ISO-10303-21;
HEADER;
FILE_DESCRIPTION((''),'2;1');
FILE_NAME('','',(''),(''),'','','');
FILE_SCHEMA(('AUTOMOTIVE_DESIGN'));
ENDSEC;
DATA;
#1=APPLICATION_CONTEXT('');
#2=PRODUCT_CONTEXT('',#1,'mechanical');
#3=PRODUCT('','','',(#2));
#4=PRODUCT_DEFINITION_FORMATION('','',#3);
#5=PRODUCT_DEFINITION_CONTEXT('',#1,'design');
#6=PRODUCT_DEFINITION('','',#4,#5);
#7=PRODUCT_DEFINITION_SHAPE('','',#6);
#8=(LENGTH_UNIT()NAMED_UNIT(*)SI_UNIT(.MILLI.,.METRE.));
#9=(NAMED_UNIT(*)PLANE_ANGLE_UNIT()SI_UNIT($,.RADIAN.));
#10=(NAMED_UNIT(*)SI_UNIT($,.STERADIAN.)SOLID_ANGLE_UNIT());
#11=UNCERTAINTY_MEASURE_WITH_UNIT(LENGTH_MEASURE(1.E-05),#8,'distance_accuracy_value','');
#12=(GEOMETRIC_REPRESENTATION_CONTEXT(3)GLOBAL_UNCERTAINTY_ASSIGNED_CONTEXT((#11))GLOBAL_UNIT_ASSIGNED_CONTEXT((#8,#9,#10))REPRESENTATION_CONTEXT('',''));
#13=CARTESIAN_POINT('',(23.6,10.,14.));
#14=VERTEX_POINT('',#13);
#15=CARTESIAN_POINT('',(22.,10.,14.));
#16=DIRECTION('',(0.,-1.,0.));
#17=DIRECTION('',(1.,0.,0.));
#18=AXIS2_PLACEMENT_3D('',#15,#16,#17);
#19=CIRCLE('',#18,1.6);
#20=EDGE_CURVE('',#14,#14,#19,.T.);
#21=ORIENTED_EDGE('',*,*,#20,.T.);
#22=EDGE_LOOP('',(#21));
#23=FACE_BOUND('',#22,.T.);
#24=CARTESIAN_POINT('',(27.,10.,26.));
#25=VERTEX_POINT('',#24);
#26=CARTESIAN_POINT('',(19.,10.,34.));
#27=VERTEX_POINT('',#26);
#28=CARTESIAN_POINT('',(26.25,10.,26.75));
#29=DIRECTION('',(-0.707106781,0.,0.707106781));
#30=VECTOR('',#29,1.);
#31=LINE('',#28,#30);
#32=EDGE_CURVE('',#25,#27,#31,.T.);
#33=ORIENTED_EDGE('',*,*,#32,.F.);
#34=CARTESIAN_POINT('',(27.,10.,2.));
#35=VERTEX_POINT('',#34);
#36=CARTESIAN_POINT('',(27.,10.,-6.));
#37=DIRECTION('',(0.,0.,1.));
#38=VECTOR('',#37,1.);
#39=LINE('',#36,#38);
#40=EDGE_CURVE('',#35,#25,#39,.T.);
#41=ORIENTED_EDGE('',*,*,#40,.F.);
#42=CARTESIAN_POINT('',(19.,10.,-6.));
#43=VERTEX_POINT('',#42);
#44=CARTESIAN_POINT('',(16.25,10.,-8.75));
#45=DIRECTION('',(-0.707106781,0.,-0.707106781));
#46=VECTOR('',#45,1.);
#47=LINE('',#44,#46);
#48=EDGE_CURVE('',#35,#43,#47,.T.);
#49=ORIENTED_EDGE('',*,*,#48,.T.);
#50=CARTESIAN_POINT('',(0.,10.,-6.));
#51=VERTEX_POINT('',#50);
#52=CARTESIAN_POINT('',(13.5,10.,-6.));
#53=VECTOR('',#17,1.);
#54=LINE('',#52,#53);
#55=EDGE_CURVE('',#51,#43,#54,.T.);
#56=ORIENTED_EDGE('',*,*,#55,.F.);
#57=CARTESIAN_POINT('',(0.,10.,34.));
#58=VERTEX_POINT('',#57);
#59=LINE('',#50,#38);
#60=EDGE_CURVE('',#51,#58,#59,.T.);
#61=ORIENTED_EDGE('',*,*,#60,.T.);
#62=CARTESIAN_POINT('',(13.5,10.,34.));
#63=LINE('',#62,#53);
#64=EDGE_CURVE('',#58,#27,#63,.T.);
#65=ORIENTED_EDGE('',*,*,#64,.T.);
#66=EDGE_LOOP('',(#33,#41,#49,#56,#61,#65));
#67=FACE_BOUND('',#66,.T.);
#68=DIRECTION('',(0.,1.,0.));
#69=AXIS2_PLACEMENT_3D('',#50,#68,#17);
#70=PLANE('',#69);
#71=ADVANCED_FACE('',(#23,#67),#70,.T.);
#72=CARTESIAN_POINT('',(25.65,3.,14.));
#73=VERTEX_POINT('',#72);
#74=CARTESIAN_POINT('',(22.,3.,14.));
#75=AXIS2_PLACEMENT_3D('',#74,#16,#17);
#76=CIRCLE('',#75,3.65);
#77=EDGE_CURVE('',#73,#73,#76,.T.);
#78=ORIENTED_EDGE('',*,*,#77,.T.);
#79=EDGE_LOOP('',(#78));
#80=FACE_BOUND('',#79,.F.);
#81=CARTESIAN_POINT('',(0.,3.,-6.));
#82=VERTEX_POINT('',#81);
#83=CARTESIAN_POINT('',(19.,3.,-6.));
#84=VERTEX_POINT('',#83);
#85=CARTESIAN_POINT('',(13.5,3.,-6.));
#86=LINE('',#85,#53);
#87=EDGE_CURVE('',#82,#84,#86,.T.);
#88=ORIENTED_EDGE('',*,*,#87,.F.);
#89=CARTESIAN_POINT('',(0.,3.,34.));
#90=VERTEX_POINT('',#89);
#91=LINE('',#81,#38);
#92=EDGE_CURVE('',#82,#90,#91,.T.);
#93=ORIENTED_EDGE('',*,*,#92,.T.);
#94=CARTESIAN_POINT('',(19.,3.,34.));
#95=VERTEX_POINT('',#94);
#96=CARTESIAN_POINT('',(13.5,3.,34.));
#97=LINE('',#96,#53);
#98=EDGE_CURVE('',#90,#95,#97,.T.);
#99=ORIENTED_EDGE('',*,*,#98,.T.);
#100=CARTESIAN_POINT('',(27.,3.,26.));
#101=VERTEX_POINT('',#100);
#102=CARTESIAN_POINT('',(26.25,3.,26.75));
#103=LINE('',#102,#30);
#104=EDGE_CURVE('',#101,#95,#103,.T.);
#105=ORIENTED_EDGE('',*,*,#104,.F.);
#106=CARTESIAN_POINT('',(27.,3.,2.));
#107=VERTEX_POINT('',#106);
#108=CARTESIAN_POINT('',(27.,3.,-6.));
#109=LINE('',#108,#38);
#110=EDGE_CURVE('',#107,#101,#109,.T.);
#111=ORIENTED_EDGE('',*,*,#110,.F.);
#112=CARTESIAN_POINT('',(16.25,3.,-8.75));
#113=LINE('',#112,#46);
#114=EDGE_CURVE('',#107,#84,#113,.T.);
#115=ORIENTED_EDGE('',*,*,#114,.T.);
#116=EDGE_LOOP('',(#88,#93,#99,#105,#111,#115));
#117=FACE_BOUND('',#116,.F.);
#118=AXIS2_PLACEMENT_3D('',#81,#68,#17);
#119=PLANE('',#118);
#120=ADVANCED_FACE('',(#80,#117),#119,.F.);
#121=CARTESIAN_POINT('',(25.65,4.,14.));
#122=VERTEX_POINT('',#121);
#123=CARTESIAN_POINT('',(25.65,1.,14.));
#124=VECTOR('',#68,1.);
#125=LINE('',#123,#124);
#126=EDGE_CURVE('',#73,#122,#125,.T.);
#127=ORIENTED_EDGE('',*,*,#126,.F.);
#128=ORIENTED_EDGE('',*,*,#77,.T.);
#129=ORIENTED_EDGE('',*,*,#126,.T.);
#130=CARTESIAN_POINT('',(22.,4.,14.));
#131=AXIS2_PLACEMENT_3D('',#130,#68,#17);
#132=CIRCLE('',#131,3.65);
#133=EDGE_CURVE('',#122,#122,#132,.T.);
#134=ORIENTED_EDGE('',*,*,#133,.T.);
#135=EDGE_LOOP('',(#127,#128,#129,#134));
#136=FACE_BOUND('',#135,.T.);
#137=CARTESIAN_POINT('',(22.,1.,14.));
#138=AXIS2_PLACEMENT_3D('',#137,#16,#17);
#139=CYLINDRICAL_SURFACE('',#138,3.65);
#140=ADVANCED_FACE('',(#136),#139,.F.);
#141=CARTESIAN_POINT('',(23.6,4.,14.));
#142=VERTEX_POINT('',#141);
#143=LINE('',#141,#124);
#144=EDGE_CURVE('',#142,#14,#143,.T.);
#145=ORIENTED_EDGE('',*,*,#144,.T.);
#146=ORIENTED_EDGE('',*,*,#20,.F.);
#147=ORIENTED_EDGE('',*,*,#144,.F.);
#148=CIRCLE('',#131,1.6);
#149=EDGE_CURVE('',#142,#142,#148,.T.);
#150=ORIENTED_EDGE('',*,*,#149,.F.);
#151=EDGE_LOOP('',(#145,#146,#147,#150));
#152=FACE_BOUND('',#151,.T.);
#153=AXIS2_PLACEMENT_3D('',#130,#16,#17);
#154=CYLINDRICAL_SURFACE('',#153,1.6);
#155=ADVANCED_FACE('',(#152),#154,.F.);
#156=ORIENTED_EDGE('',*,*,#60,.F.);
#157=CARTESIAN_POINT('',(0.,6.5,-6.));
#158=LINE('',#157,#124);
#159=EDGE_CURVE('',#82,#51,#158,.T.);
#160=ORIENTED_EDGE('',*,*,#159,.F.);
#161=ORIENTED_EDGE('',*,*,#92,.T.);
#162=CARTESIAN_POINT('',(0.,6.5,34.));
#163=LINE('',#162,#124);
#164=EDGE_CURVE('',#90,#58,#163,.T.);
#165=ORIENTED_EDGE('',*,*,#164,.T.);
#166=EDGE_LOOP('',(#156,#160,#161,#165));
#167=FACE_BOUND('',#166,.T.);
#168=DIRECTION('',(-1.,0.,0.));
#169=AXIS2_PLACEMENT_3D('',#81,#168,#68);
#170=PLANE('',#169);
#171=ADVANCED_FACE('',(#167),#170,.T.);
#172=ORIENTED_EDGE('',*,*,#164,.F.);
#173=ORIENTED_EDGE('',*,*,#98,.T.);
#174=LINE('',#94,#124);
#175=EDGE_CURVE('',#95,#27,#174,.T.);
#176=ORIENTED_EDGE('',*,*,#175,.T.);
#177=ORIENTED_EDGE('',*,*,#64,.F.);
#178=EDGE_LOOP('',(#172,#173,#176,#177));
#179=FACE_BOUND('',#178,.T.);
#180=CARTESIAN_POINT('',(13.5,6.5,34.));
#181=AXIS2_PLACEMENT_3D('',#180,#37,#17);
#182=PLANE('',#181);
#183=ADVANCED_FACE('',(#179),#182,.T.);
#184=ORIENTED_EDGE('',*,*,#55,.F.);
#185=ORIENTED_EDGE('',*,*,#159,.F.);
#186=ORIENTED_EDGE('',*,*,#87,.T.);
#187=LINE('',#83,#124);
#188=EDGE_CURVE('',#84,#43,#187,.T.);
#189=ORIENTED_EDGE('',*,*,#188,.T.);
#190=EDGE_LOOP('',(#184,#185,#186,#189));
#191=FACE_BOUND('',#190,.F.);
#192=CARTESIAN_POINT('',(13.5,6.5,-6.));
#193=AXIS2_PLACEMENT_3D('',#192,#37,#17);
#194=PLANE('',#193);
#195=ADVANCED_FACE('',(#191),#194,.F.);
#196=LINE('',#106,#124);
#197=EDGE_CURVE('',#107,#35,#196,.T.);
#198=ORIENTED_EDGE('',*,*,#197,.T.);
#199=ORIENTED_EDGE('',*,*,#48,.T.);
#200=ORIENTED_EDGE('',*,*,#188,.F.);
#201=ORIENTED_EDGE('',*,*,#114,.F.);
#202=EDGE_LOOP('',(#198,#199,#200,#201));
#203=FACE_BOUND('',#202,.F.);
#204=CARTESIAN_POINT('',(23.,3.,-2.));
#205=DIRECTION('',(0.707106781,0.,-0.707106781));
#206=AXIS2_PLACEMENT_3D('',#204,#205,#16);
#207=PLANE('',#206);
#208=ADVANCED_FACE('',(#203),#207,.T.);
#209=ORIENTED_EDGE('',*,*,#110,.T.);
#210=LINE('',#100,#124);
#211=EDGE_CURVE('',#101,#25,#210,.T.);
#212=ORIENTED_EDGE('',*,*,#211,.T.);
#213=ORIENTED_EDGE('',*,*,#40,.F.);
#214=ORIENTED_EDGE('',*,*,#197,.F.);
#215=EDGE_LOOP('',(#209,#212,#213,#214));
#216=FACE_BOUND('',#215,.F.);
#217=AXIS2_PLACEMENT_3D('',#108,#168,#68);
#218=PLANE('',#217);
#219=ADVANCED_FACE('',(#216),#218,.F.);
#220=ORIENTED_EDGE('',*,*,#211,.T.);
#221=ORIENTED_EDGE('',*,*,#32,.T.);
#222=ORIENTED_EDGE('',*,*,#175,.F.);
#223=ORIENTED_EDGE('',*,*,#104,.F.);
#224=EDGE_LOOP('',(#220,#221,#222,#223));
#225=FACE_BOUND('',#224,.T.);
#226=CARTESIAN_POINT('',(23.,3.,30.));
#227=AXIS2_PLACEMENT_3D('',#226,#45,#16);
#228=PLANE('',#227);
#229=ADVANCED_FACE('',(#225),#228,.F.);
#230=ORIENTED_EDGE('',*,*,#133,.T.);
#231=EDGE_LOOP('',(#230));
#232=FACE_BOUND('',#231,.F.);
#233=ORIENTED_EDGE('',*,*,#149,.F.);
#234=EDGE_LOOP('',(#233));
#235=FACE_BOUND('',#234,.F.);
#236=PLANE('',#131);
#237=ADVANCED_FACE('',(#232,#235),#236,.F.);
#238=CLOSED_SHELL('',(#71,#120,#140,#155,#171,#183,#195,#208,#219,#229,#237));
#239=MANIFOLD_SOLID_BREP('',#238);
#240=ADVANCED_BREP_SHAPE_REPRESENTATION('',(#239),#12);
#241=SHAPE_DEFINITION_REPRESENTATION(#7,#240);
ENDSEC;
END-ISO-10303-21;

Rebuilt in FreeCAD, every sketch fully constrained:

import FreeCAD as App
import Part
import Sketcher
from FreeCAD import Vector
Q = App.Units.Quantity


def edges_at(feature, points):
    """Names of the edges that pass closest to the given points."""
    edges = feature.Shape.Edges
    near = lambda p: min(range(len(edges)), key=lambda i: edges[i].distToShape(Part.Vertex(*p))[0])
    return sorted({f"Edge{near(p) + 1}" for p in points})

doc = App.newDocument("Part")
body = doc.addObject("PartDesign::Body", "Body")

# Sketch on XZ plane
sketch1 = body.newObject("Sketcher::SketchObject", "Sketch")
sketch1.AttachmentSupport = (doc.getObject("XZ_Plane"), [""])
sketch1.MapMode = "FlatFace"
sketch1.addGeometry(Part.Circle(Vector(0, 0, 0), Vector(0, 0, 1), 3.6), False)
sketch1.addConstraint(Sketcher.Constraint("Coincident", 0, 3, -1, 1))
sketch1.addConstraint(Sketcher.Constraint("Diameter", 0, Q("7.3 mm")))
pad1 = body.newObject("PartDesign::Pad", "Pad")
pad1.Profile = sketch1
pad1.Length = 3
pad1.Reversed = True
body2 = doc.addObject("PartDesign::Body", "Body001")

# Sketch on XZ plane
sketch2 = body2.newObject("Sketcher::SketchObject", "Sketch001")
sketch2.AttachmentSupport = (doc.getObject("XZ_Plane001"), [""])
sketch2.MapMode = "FlatFace"
sketch2.AttachmentOffset = App.Placement(Vector(0, 0, -3), App.Rotation())
sketch2.addGeometry(Part.Circle(Vector(0, 0, 0), Vector(0, 0, 1), 1.6), False)
sketch2.addConstraint(Sketcher.Constraint("Coincident", 0, 3, -1, 1))
sketch2.addConstraint(Sketcher.Constraint("Diameter", 0, Q("3.2 mm")))
pad2 = body2.newObject("PartDesign::Pad", "Pad001")
pad2.Profile = sketch2
pad2.Length = 10
pad2.Reversed = True
doc.recompute()

boolean = body2.newObject("PartDesign::Boolean", "Boolean")
boolean.Type = "Fuse"
boolean.addObjects([body])
body3 = doc.addObject("PartDesign::Body", "Body002")
doc.recompute()

body2.Placement = App.Placement(Vector(22, 1, 14), App.Rotation(Vector(0, 0, 1), 0))
boolean2 = body3.newObject("PartDesign::Boolean", "Boolean001")
boolean2.Type = "Fuse"
boolean2.addObjects([body2])
body4 = doc.addObject("PartDesign::Body", "Body003")

# Sketch on XY plane
sketch3 = body4.newObject("Sketcher::SketchObject", "Sketch002")
sketch3.AttachmentSupport = (doc.getObject("XY_Plane003"), [""])
sketch3.MapMode = "FlatFace"
sketch3.AttachmentOffset = App.Placement(Vector(0, 0, -6), App.Rotation())
sketch3.addGeometry(Part.LineSegment(Vector(0, 10, 0), Vector(0, 3, 0)), False)
sketch3.addGeometry(Part.LineSegment(Vector(0, 3, 0), Vector(27, 3, 0)), False)
sketch3.addGeometry(Part.LineSegment(Vector(27, 3, 0), Vector(27, 10, 0)), False)
sketch3.addGeometry(Part.LineSegment(Vector(27, 10, 0), Vector(0, 10, 0)), False)
sketch3.addConstraint(Sketcher.Constraint("Coincident", 0, 2, 1, 1))
sketch3.addConstraint(Sketcher.Constraint("Coincident", 1, 2, 2, 1))
sketch3.addConstraint(Sketcher.Constraint("Coincident", 2, 2, 3, 1))
sketch3.addConstraint(Sketcher.Constraint("Coincident", 3, 2, 0, 1))
sketch3.addConstraint(Sketcher.Constraint("Vertical", 0))
sketch3.addConstraint(Sketcher.Constraint("Horizontal", 1))
sketch3.addConstraint(Sketcher.Constraint("Vertical", 2))
sketch3.addConstraint(Sketcher.Constraint("Horizontal", 3))
sketch3.addConstraint(Sketcher.Constraint("PointOnObject", 0, 2, -2))
sketch3.addConstraint(Sketcher.Constraint("DistanceX", 1, 1, 1, 2, Q("27 mm")))
sketch3.addConstraint(Sketcher.Constraint("DistanceY", 0, 2, 0, 1, Q("7 mm")))
sketch3.addConstraint(Sketcher.Constraint("DistanceY", -1, 1, 0, 2, Q("3 mm")))
pad3 = body4.newObject("PartDesign::Pad", "Pad002")
pad3.Profile = sketch3
pad3.Length = 40
doc.recompute()

chamfer = body4.newObject("PartDesign::Chamfer", "Chamfer")
chamfer.Base = (pad3, edges_at(pad3, [(27, 6.5, 34), (27, 6.5, -6)]))
chamfer.Size = 8
doc.recompute()

boolean3 = body4.newObject("PartDesign::Boolean", "Boolean002")
boolean3.Type = "Cut"
boolean3.addObjects([body3])

doc.recompute()
